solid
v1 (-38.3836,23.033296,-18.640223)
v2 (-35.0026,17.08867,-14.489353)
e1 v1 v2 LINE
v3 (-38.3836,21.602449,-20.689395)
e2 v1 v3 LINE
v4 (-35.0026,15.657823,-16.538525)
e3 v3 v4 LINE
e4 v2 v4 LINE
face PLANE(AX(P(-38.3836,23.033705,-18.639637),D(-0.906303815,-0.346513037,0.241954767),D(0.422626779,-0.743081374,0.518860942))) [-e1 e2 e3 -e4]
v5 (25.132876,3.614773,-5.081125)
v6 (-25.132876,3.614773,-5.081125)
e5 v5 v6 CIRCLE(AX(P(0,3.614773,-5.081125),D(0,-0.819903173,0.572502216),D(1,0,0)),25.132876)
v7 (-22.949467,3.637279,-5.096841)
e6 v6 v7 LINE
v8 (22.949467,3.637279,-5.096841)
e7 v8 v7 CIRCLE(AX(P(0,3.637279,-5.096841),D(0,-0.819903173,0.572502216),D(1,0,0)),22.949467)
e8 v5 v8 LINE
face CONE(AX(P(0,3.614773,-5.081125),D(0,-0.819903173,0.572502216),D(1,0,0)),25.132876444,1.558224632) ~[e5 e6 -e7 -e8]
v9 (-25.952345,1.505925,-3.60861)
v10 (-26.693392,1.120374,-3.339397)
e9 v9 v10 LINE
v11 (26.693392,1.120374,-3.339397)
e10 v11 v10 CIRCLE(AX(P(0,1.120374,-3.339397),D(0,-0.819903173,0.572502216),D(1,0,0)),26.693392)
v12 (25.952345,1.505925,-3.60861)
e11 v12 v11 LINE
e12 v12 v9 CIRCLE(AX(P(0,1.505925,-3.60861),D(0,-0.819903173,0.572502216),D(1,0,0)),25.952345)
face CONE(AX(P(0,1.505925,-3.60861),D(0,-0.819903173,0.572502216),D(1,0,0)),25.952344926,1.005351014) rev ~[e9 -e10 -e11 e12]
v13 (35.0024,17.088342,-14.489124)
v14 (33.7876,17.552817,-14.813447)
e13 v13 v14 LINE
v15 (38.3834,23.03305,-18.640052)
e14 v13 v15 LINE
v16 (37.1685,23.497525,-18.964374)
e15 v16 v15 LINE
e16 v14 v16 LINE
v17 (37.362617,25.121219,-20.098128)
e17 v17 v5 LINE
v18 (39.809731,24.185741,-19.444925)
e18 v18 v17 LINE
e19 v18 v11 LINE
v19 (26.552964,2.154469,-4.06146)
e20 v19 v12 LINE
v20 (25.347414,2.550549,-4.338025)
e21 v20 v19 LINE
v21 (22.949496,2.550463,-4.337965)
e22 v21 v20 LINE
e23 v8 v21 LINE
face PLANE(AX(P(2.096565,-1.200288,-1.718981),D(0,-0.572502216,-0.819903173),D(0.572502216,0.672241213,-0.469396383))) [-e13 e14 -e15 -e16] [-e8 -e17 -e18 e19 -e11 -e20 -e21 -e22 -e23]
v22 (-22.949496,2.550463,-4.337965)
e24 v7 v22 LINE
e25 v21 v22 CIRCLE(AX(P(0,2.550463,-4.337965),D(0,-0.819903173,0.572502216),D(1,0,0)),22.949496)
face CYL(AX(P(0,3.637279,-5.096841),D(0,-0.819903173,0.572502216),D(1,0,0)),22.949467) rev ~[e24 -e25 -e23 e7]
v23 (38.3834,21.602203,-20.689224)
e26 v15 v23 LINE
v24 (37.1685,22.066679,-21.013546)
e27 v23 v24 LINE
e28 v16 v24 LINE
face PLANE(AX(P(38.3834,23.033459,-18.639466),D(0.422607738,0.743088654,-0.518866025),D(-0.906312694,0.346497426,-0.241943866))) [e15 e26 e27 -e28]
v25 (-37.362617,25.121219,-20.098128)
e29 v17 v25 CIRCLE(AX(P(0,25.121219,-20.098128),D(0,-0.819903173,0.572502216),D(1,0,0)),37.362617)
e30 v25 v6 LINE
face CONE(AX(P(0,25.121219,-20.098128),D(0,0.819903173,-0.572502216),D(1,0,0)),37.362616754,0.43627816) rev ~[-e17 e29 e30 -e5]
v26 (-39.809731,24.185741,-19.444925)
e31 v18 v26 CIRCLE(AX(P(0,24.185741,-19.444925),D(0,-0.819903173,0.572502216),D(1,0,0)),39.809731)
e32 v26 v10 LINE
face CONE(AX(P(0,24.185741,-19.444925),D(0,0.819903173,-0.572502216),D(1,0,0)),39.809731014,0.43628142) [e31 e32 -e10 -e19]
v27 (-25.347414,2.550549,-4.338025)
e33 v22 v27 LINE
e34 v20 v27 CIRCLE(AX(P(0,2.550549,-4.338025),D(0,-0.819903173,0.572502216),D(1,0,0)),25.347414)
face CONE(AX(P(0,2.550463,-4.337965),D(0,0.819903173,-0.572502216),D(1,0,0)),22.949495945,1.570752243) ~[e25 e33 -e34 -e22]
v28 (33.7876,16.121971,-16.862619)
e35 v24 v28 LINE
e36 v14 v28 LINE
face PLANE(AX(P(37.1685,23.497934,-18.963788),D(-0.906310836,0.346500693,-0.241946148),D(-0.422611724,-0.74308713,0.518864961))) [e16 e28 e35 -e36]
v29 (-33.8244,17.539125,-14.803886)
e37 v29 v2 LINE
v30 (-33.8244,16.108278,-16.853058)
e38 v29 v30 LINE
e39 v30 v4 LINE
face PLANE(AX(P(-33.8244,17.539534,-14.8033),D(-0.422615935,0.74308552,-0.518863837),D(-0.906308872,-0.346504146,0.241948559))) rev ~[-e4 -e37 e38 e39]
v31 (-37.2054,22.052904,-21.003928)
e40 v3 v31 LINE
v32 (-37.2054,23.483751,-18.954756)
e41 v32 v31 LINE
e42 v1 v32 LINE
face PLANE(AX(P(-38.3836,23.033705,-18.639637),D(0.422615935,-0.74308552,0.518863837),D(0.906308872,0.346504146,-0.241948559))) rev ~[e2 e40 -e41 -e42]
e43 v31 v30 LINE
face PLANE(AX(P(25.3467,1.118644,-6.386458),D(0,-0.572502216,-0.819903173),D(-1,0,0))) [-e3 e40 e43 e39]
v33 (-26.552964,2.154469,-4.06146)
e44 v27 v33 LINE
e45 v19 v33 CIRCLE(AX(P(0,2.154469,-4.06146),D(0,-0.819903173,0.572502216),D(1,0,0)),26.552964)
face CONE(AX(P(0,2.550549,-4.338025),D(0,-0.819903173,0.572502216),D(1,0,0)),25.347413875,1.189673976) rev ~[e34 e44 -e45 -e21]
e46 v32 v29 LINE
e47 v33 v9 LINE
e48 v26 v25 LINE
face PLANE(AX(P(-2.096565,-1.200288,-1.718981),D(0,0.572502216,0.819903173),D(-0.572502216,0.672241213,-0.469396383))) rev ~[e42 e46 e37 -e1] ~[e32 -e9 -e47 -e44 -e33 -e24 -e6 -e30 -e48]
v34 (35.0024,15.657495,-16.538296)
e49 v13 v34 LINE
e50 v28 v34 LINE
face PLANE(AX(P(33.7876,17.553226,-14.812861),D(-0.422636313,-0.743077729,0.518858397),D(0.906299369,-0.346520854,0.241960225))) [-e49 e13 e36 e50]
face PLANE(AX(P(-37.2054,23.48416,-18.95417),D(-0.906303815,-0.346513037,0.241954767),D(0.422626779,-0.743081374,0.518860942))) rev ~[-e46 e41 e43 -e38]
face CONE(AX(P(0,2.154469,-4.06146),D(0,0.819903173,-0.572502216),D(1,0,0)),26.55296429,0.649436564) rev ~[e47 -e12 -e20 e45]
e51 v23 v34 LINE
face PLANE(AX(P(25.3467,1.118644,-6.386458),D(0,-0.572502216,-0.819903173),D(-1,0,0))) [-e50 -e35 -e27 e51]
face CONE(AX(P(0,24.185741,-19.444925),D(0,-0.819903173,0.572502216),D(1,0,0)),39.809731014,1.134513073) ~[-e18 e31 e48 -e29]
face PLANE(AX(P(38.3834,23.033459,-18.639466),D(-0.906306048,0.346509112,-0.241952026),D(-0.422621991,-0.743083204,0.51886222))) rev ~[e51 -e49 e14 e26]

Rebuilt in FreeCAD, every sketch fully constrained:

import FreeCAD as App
import Part
import Sketcher

V = App.Vector
Q = App.Units.Quantity


def add_polygon(sketch, points):
    """Adds a closed chain of lines whose ends are joined by coincident constraints."""
    first, n = sketch.GeometryCount, len(points)
    for a, b in zip(points, points[1:] + points[:1]):
        sketch.addGeometry(Part.LineSegment(App.Vector(*a, 0), App.Vector(*b, 0)), False)
    for i in range(n):
        sketch.addConstraint(Sketcher.Constraint("Coincident", first + i, 2, first + (i + 1) % n, 1))

doc = App.newDocument("Part")
body = doc.addObject("PartDesign::Body", "Body")

# Sketch on YZ plane
sketch1 = doc.addObject("Sketcher::SketchObject", "Sketch")
body.addObject(sketch1)
sketch1.AttachmentSupport = (doc.YZ_Plane, [""])
sketch1.MapMode = "FlatFace"
add_polygon(sketch1, [(46.5114, 10.5356), (46.9769, 13.1952), (16.4024, 18.5466), (16.3637, 17.6698), (17.3561, 17.7094), (17.062, 16.4444), (15.6891, 14.4784), (16.7759, 13.7195), (18.0034, 15.5254)])  # lines 0-8
sketch1.addGeometry(Part.LineSegment(V(25.121219, -20.098128, 0), V(1.120374, -3.339397, 0)), True)  # axis
sketch1.addConstraint([
    Sketcher.Constraint("Distance", 0, 2.7),
    Sketcher.Constraint("DistanceY", 4, 2, 3, 2, 1.265),
    Sketcher.Constraint("DistanceY", 6, 2, 3, 2, 3.99),
    Sketcher.Constraint("Distance", 5, 2.398),
    Sketcher.Constraint("DistanceX", -1, 1, 0, 2, 46.977),
    Sketcher.Constraint("DistanceX", -1, 1, 3, 2, 17.356),
    Sketcher.Constraint("DistanceX", -1, 1, 4, 2, 17.062),
    Sketcher.Constraint("DistanceX", -1, 1, 5, 2, 15.689),
    Sketcher.Constraint("DistanceX", -1, 1, 6, 2, 16.776),
    Sketcher.Constraint("DistanceY", 6, 2, 1, 2, 4.827),
    Sketcher.Constraint("DistanceY", 7, 2, 4, 2, 0.919),
    Sketcher.Constraint("DistanceX", 7, 2, 8, 2, 28.508),
    Sketcher.Constraint("DistanceY", 8, 2, 6, 2, 3.184),
    Sketcher.Constraint("DistanceX", 5, 2, 9, 1, 9.432),
    Sketcher.Constraint("DistanceY", 9, 2, 6, 2, 17.059),
    Sketcher.Constraint("DistanceX", 9, 2, 7, 2, 16.883),
    Sketcher.Constraint("Distance", 1, 31.0393),
    Sketcher.Constraint("Distance", 2, 0.8777),
    Sketcher.Constraint("Distance", 3, 0.9932),
    Sketcher.Constraint("Distance", 7, 2.1836),
    Sketcher.Constraint("Distance", 9, 29.2728),
    Sketcher.Constraint("DistanceY", -1, 1, 0, 2, 13.1952),
])
revolution = doc.addObject("PartDesign::Revolution", "Revolution")
body.addObject(revolution)
revolution.Profile = sketch1
revolution.ReferenceAxis = (sketch1, ["Axis0"])
revolution.Angle = 180
revolution.Midplane = True

# Sketch on an angled plane
sketch2 = doc.addObject("Sketcher::SketchObject", "Sketch001")
body.addObject(sketch2)
sketch2.Placement = App.Placement(V(25.3467, 2.5499, -4.3367), App.Rotation(V(-1, 0, 0), V(0, 0.819903173, -0.572502216), V(0, -0.572502216, -0.819903173), "ZXY"))
add_polygon(sketch2, [(-11.8218, 25.5494), (-13.0367, 24.9829), (-9.6557, 17.7324), (-8.4409, 18.2989)])  # lines 0-3
add_polygon(sketch2, [(63.7303, 24.9832), (62.5521, 25.5326), (59.1711, 18.2822), (60.3493, 17.7328)])  # lines 4-7
sketch2.addConstraint([
    Sketcher.Constraint("Perpendicular", 0, 1),
    Sketcher.Constraint("Perpendicular", 1, 2),
    Sketcher.Constraint("Perpendicular", 2, 3),
    Sketcher.Constraint("Perpendicular", 4, 5),
    Sketcher.Constraint("Perpendicular", 5, 6),
    Sketcher.Constraint("Perpendicular", 6, 7),
    Sketcher.Constraint("Equal", 3, 5),
    Sketcher.Constraint("Distance", 1, 8.0),
    Sketcher.Constraint("Angle", 0, Q("-155.0007 deg")),
    Sketcher.Constraint("Angle", 4, Q("155.0001 deg")),
    Sketcher.Constraint("Distance", 4, 1.3),
    Sketcher.Constraint("DistanceY", 1, 2, 6, 2, 0.0004),
    Sketcher.Constraint("DistanceY", -1, 1, 0, 2, 24.983),
    Sketcher.Constraint("DistanceX", 2, 2, -1, 1, 8.441),
    Sketcher.Constraint("DistanceY", -1, 1, 2, 2, 18.299),
    Sketcher.Constraint("DistanceX", -1, 1, 4, 2, 62.552),
])
pad1 = doc.addObject("PartDesign::Pad", "Pad")
body.addObject(pad1)
pad1.Profile = sketch2
pad1.Length = 2.5

doc.recompute()
